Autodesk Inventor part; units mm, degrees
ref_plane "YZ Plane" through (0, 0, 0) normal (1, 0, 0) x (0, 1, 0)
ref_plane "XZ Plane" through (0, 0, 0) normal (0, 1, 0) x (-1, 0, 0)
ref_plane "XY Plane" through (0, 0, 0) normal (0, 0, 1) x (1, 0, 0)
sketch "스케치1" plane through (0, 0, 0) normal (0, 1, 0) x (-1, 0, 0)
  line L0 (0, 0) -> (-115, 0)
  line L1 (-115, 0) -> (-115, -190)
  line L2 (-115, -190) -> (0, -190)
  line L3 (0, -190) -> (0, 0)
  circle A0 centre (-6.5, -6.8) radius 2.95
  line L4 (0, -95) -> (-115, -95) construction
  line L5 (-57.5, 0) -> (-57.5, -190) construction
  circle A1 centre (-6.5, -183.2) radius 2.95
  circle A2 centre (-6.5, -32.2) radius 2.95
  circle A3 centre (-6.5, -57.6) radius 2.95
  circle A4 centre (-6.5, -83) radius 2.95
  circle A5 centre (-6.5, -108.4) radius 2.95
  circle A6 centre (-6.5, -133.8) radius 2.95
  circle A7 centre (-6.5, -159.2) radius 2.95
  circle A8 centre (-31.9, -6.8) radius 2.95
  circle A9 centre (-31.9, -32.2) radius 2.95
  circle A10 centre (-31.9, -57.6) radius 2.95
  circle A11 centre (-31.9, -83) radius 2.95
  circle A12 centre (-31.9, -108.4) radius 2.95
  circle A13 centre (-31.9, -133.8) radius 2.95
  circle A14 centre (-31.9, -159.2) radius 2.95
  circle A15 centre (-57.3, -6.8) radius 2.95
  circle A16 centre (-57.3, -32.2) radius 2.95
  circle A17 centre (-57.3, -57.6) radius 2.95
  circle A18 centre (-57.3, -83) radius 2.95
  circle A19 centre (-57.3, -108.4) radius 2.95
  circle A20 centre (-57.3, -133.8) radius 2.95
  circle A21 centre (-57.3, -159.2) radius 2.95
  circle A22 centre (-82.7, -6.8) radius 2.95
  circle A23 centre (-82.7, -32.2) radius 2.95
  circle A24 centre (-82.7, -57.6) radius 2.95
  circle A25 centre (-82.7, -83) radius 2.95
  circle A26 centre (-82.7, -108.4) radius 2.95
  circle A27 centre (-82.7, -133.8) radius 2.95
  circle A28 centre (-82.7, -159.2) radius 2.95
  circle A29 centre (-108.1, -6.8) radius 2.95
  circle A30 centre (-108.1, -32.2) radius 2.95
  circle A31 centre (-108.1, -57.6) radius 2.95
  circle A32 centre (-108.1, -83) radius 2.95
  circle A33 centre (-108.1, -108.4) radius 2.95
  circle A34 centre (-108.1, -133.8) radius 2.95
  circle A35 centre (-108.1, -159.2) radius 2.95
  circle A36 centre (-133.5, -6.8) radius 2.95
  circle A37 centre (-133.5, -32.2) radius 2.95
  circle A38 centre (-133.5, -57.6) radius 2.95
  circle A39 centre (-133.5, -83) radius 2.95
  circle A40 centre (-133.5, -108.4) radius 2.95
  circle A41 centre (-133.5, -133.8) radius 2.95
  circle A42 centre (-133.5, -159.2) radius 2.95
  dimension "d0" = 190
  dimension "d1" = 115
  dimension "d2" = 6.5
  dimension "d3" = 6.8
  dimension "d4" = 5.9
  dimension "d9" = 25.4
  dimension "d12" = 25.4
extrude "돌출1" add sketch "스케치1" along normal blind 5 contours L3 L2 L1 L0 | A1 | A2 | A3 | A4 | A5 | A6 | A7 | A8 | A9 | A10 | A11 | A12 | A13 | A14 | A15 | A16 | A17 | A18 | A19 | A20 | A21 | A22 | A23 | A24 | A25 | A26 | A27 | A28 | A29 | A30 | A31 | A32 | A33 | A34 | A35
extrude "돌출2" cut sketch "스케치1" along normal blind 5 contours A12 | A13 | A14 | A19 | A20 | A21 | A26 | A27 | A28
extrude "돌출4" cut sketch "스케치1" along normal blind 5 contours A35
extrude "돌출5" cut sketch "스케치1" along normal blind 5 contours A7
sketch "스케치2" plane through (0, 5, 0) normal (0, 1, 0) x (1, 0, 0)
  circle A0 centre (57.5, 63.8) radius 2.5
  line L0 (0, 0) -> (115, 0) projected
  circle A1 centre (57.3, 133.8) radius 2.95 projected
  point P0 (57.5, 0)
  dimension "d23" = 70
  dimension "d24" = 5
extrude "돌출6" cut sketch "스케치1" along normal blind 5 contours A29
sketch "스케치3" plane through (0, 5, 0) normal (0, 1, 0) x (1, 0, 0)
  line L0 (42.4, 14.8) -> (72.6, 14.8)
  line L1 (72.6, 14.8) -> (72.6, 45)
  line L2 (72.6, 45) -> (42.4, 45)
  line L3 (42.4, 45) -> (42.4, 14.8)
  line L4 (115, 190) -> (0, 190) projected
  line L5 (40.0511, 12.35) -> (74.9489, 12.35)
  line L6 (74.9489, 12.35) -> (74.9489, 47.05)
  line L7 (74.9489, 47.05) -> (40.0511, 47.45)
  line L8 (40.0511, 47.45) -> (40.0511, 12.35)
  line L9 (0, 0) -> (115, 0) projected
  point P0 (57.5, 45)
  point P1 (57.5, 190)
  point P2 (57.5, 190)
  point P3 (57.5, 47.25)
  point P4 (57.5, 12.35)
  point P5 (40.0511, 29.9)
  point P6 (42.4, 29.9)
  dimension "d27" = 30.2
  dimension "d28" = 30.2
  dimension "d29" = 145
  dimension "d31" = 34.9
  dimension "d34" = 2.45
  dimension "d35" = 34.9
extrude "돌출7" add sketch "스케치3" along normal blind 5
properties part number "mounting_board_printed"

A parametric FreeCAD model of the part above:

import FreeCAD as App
import Part
import Sketcher
Q = App.Units.Quantity

doc = App.newDocument("Part")
body = doc.addObject("PartDesign::Body", "Body")

# Sketch on XZ plane
sketch1 = body.newObject("Sketcher::SketchObject", "Sketch")
sketch1.AttachmentSupport = (doc.getObject("XZ_Plane"), [""])
sketch1.MapMode = "FlatFace"
sketch1.addGeometry(Part.LineSegment(App.Vector(0, -190, 0), App.Vector(0, 0, 0)), False)
sketch1.addGeometry(Part.LineSegment(App.Vector(0, 0, 0), App.Vector(115, 0, 0)), False)
sketch1.addGeometry(Part.LineSegment(App.Vector(115, 0, 0), App.Vector(115, -190, 0)), False)
sketch1.addGeometry(Part.LineSegment(App.Vector(115, -190, 0), App.Vector(0, -190, 0)), False)
sketch1.addGeometry(Part.Circle(App.Vector(6.5, -6.8, 0), App.Vector(0, 0, 1), 3), False)
sketch1.addConstraint(Sketcher.Constraint("Coincident", 0, 2, 1, 1))
sketch1.addConstraint(Sketcher.Constraint("Coincident", 1, 2, 2, 1))
sketch1.addConstraint(Sketcher.Constraint("Coincident", 2, 2, 3, 1))
sketch1.addConstraint(Sketcher.Constraint("Coincident", 3, 2, 0, 1))
sketch1.addConstraint(Sketcher.Constraint("Vertical", 0))
sketch1.addConstraint(Sketcher.Constraint("Horizontal", 1))
sketch1.addConstraint(Sketcher.Constraint("Vertical", 2))
sketch1.addConstraint(Sketcher.Constraint("Horizontal", 3))
sketch1.addConstraint(Sketcher.Constraint("Coincident", 0, 2, -1, 1))
sketch1.addConstraint(Sketcher.Constraint("Diameter", 4, Q("5.9 mm")))
sketch1.addConstraint(Sketcher.Constraint("DistanceX", 1, 1, 1, 2, Q("115 mm")))
sketch1.addConstraint(Sketcher.Constraint("DistanceY", 0, 1, 0, 2, Q("190 mm")))
sketch1.addConstraint(Sketcher.Constraint("DistanceX", -1, 1, 4, 3, Q("6.5 mm")))
sketch1.addConstraint(Sketcher.Constraint("DistanceY", 4, 3, -1, 1, Q("6.8 mm")))
pad1 = body.newObject("PartDesign::Pad", "Pad")
pad1.Profile = sketch1
pad1.Length = 5
pad1.Reversed = True

# Sketch on XZ plane
sketch2 = body.newObject("Sketcher::SketchObject", "Sketch001")
sketch2.AttachmentSupport = (doc.getObject("XZ_Plane"), [""])
sketch2.MapMode = "FlatFace"
sketch2.addGeometry(Part.Circle(App.Vector(31.9, -108.4, 0), App.Vector(0, 0, 1), 3), False)
sketch2.addGeometry(Part.Circle(App.Vector(31.9, -133.8, 0), App.Vector(0, 0, 1), 3), False)
sketch2.addGeometry(Part.Circle(App.Vector(31.9, -159.2, 0), App.Vector(0, 0, 1), 3), False)
sketch2.addGeometry(Part.Circle(App.Vector(57.3, -108.4, 0), App.Vector(0, 0, 1), 3), False)
sketch2.addGeometry(Part.Circle(App.Vector(57.3, -133.8, 0), App.Vector(0, 0, 1), 3), False)
sketch2.addGeometry(Part.Circle(App.Vector(57.3, -159.2, 0), App.Vector(0, 0, 1), 3), False)
sketch2.addGeometry(Part.Circle(App.Vector(82.7, -108.4, 0), App.Vector(0, 0, 1), 3), False)
sketch2.addGeometry(Part.Circle(App.Vector(82.7, -133.8, 0), App.Vector(0, 0, 1), 3), False)
sketch2.addGeometry(Part.Circle(App.Vector(82.7, -159.2, 0), App.Vector(0, 0, 1), 3), False)
sketch2.addConstraint(Sketcher.Constraint("Equal", 0, 1))
sketch2.addConstraint(Sketcher.Constraint("Equal", 1, 2))
sketch2.addConstraint(Sketcher.Constraint("Equal", 2, 3))
sketch2.addConstraint(Sketcher.Constraint("Equal", 3, 4))
sketch2.addConstraint(Sketcher.Constraint("Equal", 4, 5))
sketch2.addConstraint(Sketcher.Constraint("Equal", 5, 6))
sketch2.addConstraint(Sketcher.Constraint("Equal", 6, 7))
sketch2.addConstraint(Sketcher.Constraint("Equal", 7, 8))
sketch2.addConstraint(Sketcher.Constraint("Horizontal", 0, 3, 3, 3))
sketch2.addConstraint(Sketcher.Constraint("Horizontal", 1, 3, 4, 3))
sketch2.addConstraint(Sketcher.Constraint("Horizontal", 2, 3, 5, 3))
sketch2.addConstraint(Sketcher.Constraint("Horizontal", 3, 3, 6, 3))
sketch2.addConstraint(Sketcher.Constraint("Horizontal", 4, 3, 7, 3))
sketch2.addConstraint(Sketcher.Constraint("Horizontal", 5, 3, 8, 3))
sketch2.addConstraint(Sketcher.Constraint("Vertical", 0, 3, 1, 3))
sketch2.addConstraint(Sketcher.Constraint("Vertical", 1, 3, 2, 3))
sketch2.addConstraint(Sketcher.Constraint("Vertical", 3, 3, 4, 3))
sketch2.addConstraint(Sketcher.Constraint("Vertical", 4, 3, 5, 3))
sketch2.addConstraint(Sketcher.Constraint("Vertical", 6, 3, 7, 3))
sketch2.addConstraint(Sketcher.Constraint("Vertical", 7, 3, 8, 3))
sketch2.addConstraint(Sketcher.Constraint("Diameter", 0, Q("5.9 mm")))
sketch2.addConstraint(Sketcher.Constraint("DistanceY", 1, 3, 0, 3, Q("25.4 mm")))
sketch2.addConstraint(Sketcher.Constraint("DistanceY", 2, 3, 1, 3, Q("25.4 mm")))
sketch2.addConstraint(Sketcher.Constraint("DistanceX", 0, 3, 3, 3, Q("25.4 mm")))
sketch2.addConstraint(Sketcher.Constraint("DistanceX", 3, 3, 6, 3, Q("25.4 mm")))
sketch2.addConstraint(Sketcher.Constraint("DistanceX", -1, 1, 0, 3, Q("31.9 mm")))
sketch2.addConstraint(Sketcher.Constraint("DistanceY", 0, 3, -1, 1, Q("108.4 mm")))
pocket1 = body.newObject("PartDesign::Pocket", "Pocket")
pocket1.Profile = sketch2
pocket1.Length = 5

# Sketch on XZ plane
sketch3 = body.newObject("Sketcher::SketchObject", "Sketch002")
sketch3.AttachmentSupport = (doc.getObject("XZ_Plane"), [""])
sketch3.MapMode = "FlatFace"
sketch3.addGeometry(Part.Circle(App.Vector(108.1, -159.2, 0), App.Vector(0, 0, 1), 3), False)
sketch3.addConstraint(Sketcher.Constraint("Diameter", 0, Q("5.9 mm")))
sketch3.addConstraint(Sketcher.Constraint("DistanceX", -1, 1, 0, 3, Q("108.1 mm")))
sketch3.addConstraint(Sketcher.Constraint("DistanceY", 0, 3, -1, 1, Q("159.2 mm")))
pocket2 = body.newObject("PartDesign::Pocket", "Pocket001")
pocket2.Profile = sketch3
pocket2.Length = 5

# Sketch on XZ plane
sketch4 = body.newObject("Sketcher::SketchObject", "Sketch003")
sketch4.AttachmentSupport = (doc.getObject("XZ_Plane"), [""])
sketch4.MapMode = "FlatFace"
sketch4.addGeometry(Part.Circle(App.Vector(6.5, -159.2, 0), App.Vector(0, 0, 1), 3), False)
sketch4.addConstraint(Sketcher.Constraint("Diameter", 0, Q("5.9 mm")))
sketch4.addConstraint(Sketcher.Constraint("DistanceX", -1, 1, 0, 3, Q("6.5 mm")))
sketch4.addConstraint(Sketcher.Constraint("DistanceY", 0, 3, -1, 1, Q("159.2 mm")))
pocket3 = body.newObject("PartDesign::Pocket", "Pocket002")
pocket3.Profile = sketch4
pocket3.Length = 5

# Sketch on XZ plane
sketch5 = body.newObject("Sketcher::SketchObject", "Sketch004")
sketch5.AttachmentSupport = (doc.getObject("XZ_Plane"), [""])
sketch5.MapMode = "FlatFace"
sketch5.addGeometry(Part.Circle(App.Vector(108.1, -6.8, 0), App.Vector(0, 0, 1), 3), False)
sketch5.addConstraint(Sketcher.Constraint("Diameter", 0, Q("5.9 mm")))
sketch5.addConstraint(Sketcher.Constraint("DistanceY", 0, 3, -1, 1, Q("6.8 mm")))
sketch5.addConstraint(Sketcher.Constraint("DistanceX", -1, 1, 0, 3, Q("108.1 mm")))
pocket4 = body.newObject("PartDesign::Pocket", "Pocket003")
pocket4.Profile = sketch5
pocket4.Length = 5

# Sketch on XZ plane
sketch6 = body.newObject("Sketcher::SketchObject", "Sketch005")
sketch6.AttachmentSupport = (doc.getObject("XZ_Plane"), [""])
sketch6.MapMode = "FlatFace"
sketch6.AttachmentOffset = App.Placement(App.Vector(0, 0, -5), App.Rotation())
sketch6.addGeometry(Part.LineSegment(App.Vector(40, -47, 0), App.Vector(40, -12, 0)), False)
sketch6.addGeometry(Part.LineSegment(App.Vector(40, -12, 0), App.Vector(75, -12, 0)), False)
sketch6.addGeometry(Part.LineSegment(App.Vector(75, -12, 0), App.Vector(75, -47, 0)), False)
sketch6.addGeometry(Part.LineSegment(App.Vector(75, -47, 0), App.Vector(40, -47, 0)), False)
sketch6.addGeometry(Part.LineSegment(App.Vector(73, -15, 0), App.Vector(42, -15, 0)), False)
sketch6.addGeometry(Part.LineSegment(App.Vector(42, -15, 0), App.Vector(42, -45, 0)), False)
sketch6.addGeometry(Part.LineSegment(App.Vector(42, -45, 0), App.Vector(73, -45, 0)), False)
sketch6.addGeometry(Part.LineSegment(App.Vector(73, -45, 0), App.Vector(73, -15, 0)), False)
sketch6.addConstraint(Sketcher.Constraint("Coincident", 0, 2, 1, 1))
sketch6.addConstraint(Sketcher.Constraint("Coincident", 1, 2, 2, 1))
sketch6.addConstraint(Sketcher.Constraint("Coincident", 2, 2, 3, 1))
sketch6.addConstraint(Sketcher.Constraint("Coincident", 3, 2, 0, 1))
sketch6.addConstraint(Sketcher.Constraint("Coincident", 4, 2, 5, 1))
sketch6.addConstraint(Sketcher.Constraint("Coincident", 5, 2, 6, 1))
sketch6.addConstraint(Sketcher.Constraint("Coincident", 6, 2, 7, 1))
sketch6.addConstraint(Sketcher.Constraint("Coincident", 7, 2, 4, 1))
sketch6.addConstraint(Sketcher.Constraint("Vertical", 0))
sketch6.addConstraint(Sketcher.Constraint("Horizontal", 1))
sketch6.addConstraint(Sketcher.Constraint("Vertical", 2))
sketch6.addConstraint(Sketcher.Constraint("Horizontal", 4))
sketch6.addConstraint(Sketcher.Constraint("Vertical", 5))
sketch6.addConstraint(Sketcher.Constraint("Horizontal", 6))
sketch6.addConstraint(Sketcher.Constraint("Vertical", 7))
sketch6.addConstraint(Sketcher.Constraint("Equal", 6, 5))
sketch6.addConstraint(Sketcher.Constraint("DistanceX", 4, 2, 4, 1, Q("30.2 mm")))
sketch6.addConstraint(Sketcher.Constraint("Distance", 3, Q("34.9 mm")))
sketch6.addConstraint(Sketcher.Constraint("DistanceY", 4, 2, 0, 2, Q("2.45 mm")))
sketch6.addConstraint(Sketcher.Constraint("DistanceY", 3, 2, 5, 2, Q("2.45 mm")))
sketch6.addConstraint(Sketcher.Constraint("DistanceY", 2, 2, 2, 1, Q("34.7 mm")))
sketch6.addConstraint(Sketcher.Constraint("DistanceY", 5, 2, -1, 1, Q("45 mm")))
sketch6.addConstraint(Sketcher.Constraint("DistanceX", -1, 1, 4, 2, Q("42.4 mm")))
sketch6.addConstraint(Sketcher.Constraint("DistanceX", -1, 1, 0, 2, Q("40.051 mm")))
pad2 = body.newObject("PartDesign::Pad", "Pad001")
pad2.Profile = sketch6
pad2.Length = 5
pad2.Reversed = True

doc.recompute()
